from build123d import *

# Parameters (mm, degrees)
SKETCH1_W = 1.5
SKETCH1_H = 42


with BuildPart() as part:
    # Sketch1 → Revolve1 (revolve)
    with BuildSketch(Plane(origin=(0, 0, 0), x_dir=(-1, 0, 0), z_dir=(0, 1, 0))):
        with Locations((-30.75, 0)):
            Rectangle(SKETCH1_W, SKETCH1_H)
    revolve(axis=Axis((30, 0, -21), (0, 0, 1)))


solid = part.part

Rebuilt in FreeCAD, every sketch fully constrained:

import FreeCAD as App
import Part
import Sketcher

V = App.Vector
Q = App.Units.Quantity

doc = App.newDocument("Part")
body = doc.addObject("PartDesign::Body", "Body")

sketch1 = body.newObject("Sketcher::SketchObject", "Sketch")
sketch1.AttachmentSupport = (doc.getObject("XZ_Plane"), [""])
sketch1.MapMode = "FlatFace"
sketch1.addGeometry([
    Part.LineSegment(V(31.5, 21, 0), V(31.5, -21, 0)),
    Part.LineSegment(V(31.5, -21, 0), V(30, -21, 0)),
    Part.LineSegment(V(30, -21, 0), V(30, 21, 0)),
    Part.LineSegment(V(30, 21, 0), V(31.5, 21, 0)),
], False)
sketch1.addGeometry(Part.LineSegment(V(30, -21, 0), V(30, 21, 0)), True)
sketch1.addConstraint([
    Sketcher.Constraint("Coincident", 0, 2, 1, 1),
    Sketcher.Constraint("Coincident", 1, 2, 2, 1),
    Sketcher.Constraint("Coincident", 2, 2, 3, 1),
    Sketcher.Constraint("Coincident", 3, 2, 0, 1),
    Sketcher.Constraint("Vertical", 0),
    Sketcher.Constraint("Horizontal", 1),
    Sketcher.Constraint("Vertical", 2),
    Sketcher.Constraint("Horizontal", 3),
    Sketcher.Constraint("Vertical", 4),
    Sketcher.Constraint("Coincident", 4, 1, 1, 2),
    Sketcher.Constraint("Horizontal", 3, 2, 4, 2),
    Sketcher.Constraint("DistanceY", 0, 2, 0, 1, Q("42 mm")),
    Sketcher.Constraint("DistanceX", 1, 2, 1, 1, Q("1.5 mm")),
    Sketcher.Constraint("DistanceY", 0, 2, -1, 1, Q("21 mm")),
    Sketcher.Constraint("DistanceX", -1, 1, 1, 2, Q("30 mm")),
])
revolution = body.newObject("PartDesign::Revolution", "Revolution")
revolution.Profile = sketch1
revolution.ReferenceAxis = (sketch1, ["Axis0"])
revolution.Angle = 360

doc.recompute()
